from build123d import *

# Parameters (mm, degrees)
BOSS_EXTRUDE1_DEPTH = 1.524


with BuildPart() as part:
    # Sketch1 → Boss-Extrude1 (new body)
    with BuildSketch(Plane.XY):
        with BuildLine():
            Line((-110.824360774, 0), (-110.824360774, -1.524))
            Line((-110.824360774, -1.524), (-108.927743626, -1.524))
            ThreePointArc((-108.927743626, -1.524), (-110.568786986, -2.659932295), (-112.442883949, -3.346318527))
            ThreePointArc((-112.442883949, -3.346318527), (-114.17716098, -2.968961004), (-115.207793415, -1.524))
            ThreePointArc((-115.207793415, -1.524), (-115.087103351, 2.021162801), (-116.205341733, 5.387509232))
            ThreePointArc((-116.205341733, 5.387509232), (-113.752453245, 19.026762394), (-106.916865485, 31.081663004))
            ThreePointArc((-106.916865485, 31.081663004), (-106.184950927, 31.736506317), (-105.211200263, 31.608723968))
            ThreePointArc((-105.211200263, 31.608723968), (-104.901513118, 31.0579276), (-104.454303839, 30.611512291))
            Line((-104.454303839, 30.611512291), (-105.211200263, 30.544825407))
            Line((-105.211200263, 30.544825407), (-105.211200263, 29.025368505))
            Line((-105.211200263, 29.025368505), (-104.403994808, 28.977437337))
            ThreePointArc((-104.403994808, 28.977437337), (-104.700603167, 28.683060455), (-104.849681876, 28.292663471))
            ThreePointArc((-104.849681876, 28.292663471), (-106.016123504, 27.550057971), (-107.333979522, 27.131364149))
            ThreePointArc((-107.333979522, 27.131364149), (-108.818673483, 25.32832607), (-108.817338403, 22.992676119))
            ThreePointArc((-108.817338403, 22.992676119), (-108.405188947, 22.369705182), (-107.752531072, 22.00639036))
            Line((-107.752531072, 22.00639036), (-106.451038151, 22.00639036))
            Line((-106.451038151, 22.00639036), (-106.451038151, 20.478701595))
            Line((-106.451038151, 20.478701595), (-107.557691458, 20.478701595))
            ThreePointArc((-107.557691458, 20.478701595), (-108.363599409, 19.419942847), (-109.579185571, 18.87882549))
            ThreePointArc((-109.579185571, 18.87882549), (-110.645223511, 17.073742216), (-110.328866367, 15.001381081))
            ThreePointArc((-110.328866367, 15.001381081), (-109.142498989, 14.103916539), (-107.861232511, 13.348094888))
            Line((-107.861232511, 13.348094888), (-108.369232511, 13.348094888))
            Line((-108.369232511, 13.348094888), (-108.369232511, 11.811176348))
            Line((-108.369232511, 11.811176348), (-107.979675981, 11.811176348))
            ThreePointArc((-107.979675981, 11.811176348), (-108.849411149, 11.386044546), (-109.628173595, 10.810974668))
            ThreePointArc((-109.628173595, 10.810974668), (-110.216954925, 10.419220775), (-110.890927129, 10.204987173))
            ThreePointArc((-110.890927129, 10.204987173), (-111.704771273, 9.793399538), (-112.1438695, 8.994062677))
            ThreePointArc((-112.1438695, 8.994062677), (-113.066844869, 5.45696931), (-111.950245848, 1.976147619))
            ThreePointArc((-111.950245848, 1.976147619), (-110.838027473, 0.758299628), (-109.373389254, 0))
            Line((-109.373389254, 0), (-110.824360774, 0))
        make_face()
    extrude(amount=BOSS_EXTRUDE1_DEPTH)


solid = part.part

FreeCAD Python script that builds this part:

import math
import FreeCAD as App
import Part
import Sketcher

V = App.Vector
Q = App.Units.Quantity

doc = App.newDocument("Part")
body = doc.addObject("PartDesign::Body", "Body")

sketch1 = body.newObject("Sketcher::SketchObject", "Sketch")
sketch1.AttachmentSupport = (doc.getObject("XY_Plane"), [""])
sketch1.MapMode = "FlatFace"
sketch1.addGeometry(Part.LineSegment(V(-110.82, -1.52, 0), V(-110.82, 0, 0)), False)
sketch1.addGeometry(Part.LineSegment(V(-110.82, 0, 0), V(-109.37, 0, 0)), False)
sketch1.addGeometry(Part.ArcOfCircle(Part.Circle(V(-107.98, 4.49, 0), V(0, 0, 1), 4.7), math.radians(-148), math.radians(-107)), False)
sketch1.addGeometry(Part.ArcOfCircle(Part.Circle(V(-106.52, 5.64, 0), V(0, 0, 1), 6.55), math.radians(149), math.radians(214)), False)
sketch1.addGeometry(Part.ArcOfCircle(Part.Circle(V(-110.63, 8.68, 0), V(0, 0, 1), 1.54), math.radians(100), math.radians(168)), False)
sketch1.addGeometry(Part.ArcOfCircle(Part.Circle(V(-111.32, 12.71, 0), V(0, 0, 1), 2.54), math.radians(-80), math.radians(-48)), False)
sketch1.addGeometry(Part.ArcOfCircle(Part.Circle(V(-106.08, 6.82, 0), V(0, 0, 1), 5.34), math.radians(111), math.radians(132)), False)
sketch1.addGeometry(Part.LineSegment(V(-107.98, 11.81, 0), V(-108.37, 11.81, 0)), False)
sketch1.addGeometry(Part.LineSegment(V(-108.37, 11.81, 0), V(-108.37, 13.35, 0)), False)
sketch1.addGeometry(Part.LineSegment(V(-108.37, 13.35, 0), V(-107.86, 13.35, 0)), False)
sketch1.addGeometry(Part.ArcOfCircle(Part.Circle(V(-101.92, 24.89, 0), V(0, 0, 1), 12.98), math.radians(-130.39), math.radians(-117.25)), False)
sketch1.addGeometry(Part.ArcOfCircle(Part.Circle(V(-107.58, 16.48, 0), V(0, 0, 1), 3.12), math.radians(130), math.radians(208)), False)
sketch1.addGeometry(Part.ArcOfCircle(Part.Circle(V(-110.03, 21.52, 0), V(0, 0, 1), 2.68), math.radians(-80), math.radians(-23)), False)
sketch1.addGeometry(Part.LineSegment(V(-107.56, 20.48, 0), V(-106.45, 20.48, 0)), False)
sketch1.addGeometry(Part.LineSegment(V(-106.45, 20.48, 0), V(-106.45, 22.01, 0)), False)
sketch1.addGeometry(Part.LineSegment(V(-106.45, 22.01, 0), V(-107.75, 22.01, 0)), False)
sketch1.addGeometry(Part.ArcOfCircle(Part.Circle(V(-107.33, 23.53, 0), V(0, 0, 1), 1.58), math.radians(-160), math.radians(-105)), False)
sketch1.addGeometry(Part.ArcOfCircle(Part.Circle(V(-105.57, 24.16, 0), V(0, 0, 1), 3.46), math.radians(121), math.radians(200)), False)
sketch1.addGeometry(Part.ArcOfCircle(Part.Circle(V(-108.28, 32.39, 0), V(0, 0, 1), 5.35), math.radians(-80), math.radians(-50)), False)
sketch1.addGeometry(Part.ArcOfCircle(Part.Circle(V(-103.87, 28.14, 0), V(0, 0, 1), 0.99), math.radians(123), math.radians(171)), False)
sketch1.addGeometry(Part.LineSegment(V(-104.4, 28.98, 0), V(-105.21, 29.03, 0)), False)
sketch1.addGeometry(Part.LineSegment(V(-105.21, 29.03, 0), V(-105.21, 30.54, 0)), False)
sketch1.addGeometry(Part.LineSegment(V(-105.21, 30.54, 0), V(-104.45, 30.61, 0)), False)
sketch1.addGeometry(Part.ArcOfCircle(Part.Circle(V(-103.06, 32.46, 0), V(0, 0, 1), 2.31), math.radians(-159), math.radians(-127)), False)
sketch1.addGeometry(Part.ArcOfCircle(Part.Circle(V(-105.84, 30.61, 0), V(0, 0, 1), 1.18), math.radians(58), math.radians(156)), False)
sketch1.addGeometry(Part.ArcOfCircle(Part.Circle(V(-75, 5.02, 0), V(0, 0, 1), 41.21), math.radians(141), math.radians(179)), False)
sketch1.addGeometry(Part.ArcOfCircle(Part.Circle(V(-125.04, 0.59, 0), V(0, 0, 1), 10.05), math.radians(-12), math.radians(29)), False)
sketch1.addGeometry(Part.ArcOfCircle(Part.Circle(V(-112.82, -0.91, 0), V(0, 0, 1), 2.46), math.radians(-166), math.radians(-81)), False)
sketch1.addGeometry(Part.ArcOfCircle(Part.Circle(V(-114.19, 4.32, 0), V(0, 0, 1), 7.87), math.radians(-77), math.radians(-48)), False)
sketch1.addGeometry(Part.LineSegment(V(-108.93, -1.52, 0), V(-110.82, -1.52, 0)), False)
sketch1.addConstraint(Sketcher.Constraint("Coincident", 0, 2, 1, 1))
sketch1.addConstraint(Sketcher.Constraint("Coincident", 1, 2, 2, 2))
sketch1.addConstraint(Sketcher.Constraint("Coincident", 2, 1, 3, 2))
sketch1.addConstraint(Sketcher.Constraint("Coincident", 3, 1, 4, 2))
sketch1.addConstraint(Sketcher.Constraint("Tangent", 4, 1, 5, 1))
sketch1.addConstraint(Sketcher.Constraint("Tangent", 5, 2, 6, 2))
sketch1.addConstraint(Sketcher.Constraint("Coincident", 6, 1, 7, 1))
sketch1.addConstraint(Sketcher.Constraint("Coincident", 7, 2, 8, 1))
sketch1.addConstraint(Sketcher.Constraint("Coincident", 8, 2, 9, 1))
sketch1.addConstraint(Sketcher.Constraint("Coincident", 9, 2, 10, 2))
sketch1.addConstraint(Sketcher.Constraint("Coincident", 10, 1, 11, 2))
sketch1.addConstraint(Sketcher.Constraint("Coincident", 11, 1, 12, 1))
sketch1.addConstraint(Sketcher.Constraint("Coincident", 12, 2, 13, 1))
sketch1.addConstraint(Sketcher.Constraint("Coincident", 13, 2, 14, 1))
sketch1.addConstraint(Sketcher.Constraint("Coincident", 14, 2, 15, 1))
sketch1.addConstraint(Sketcher.Constraint("Coincident", 15, 2, 16, 2))
sketch1.addConstraint(Sketcher.Constraint("Tangent", 16, 1, 17, 2))
sketch1.addConstraint(Sketcher.Constraint("Coincident", 17, 1, 18, 1))
sketch1.addConstraint(Sketcher.Constraint("Coincident", 18, 2, 19, 2))
sketch1.addConstraint(Sketcher.Constraint("Coincident", 19, 1, 20, 1))
sketch1.addConstraint(Sketcher.Constraint("Coincident", 20, 2, 21, 1))
sketch1.addConstraint(Sketcher.Constraint("Coincident", 21, 2, 22, 1))
sketch1.addConstraint(Sketcher.Constraint("Coincident", 22, 2, 23, 2))
sketch1.addConstraint(Sketcher.Constraint("Coincident", 23, 1, 24, 1))
sketch1.addConstraint(Sketcher.Constraint("Coincident", 24, 2, 25, 1))
sketch1.addConstraint(Sketcher.Constraint("Coincident", 25, 2, 26, 2))
sketch1.addConstraint(Sketcher.Constraint("Coincident", 26, 1, 27, 1))
sketch1.addConstraint(Sketcher.Constraint("Coincident", 27, 2, 28, 1))
sketch1.addConstraint(Sketcher.Constraint("Coincident", 28, 2, 29, 1))
sketch1.addConstraint(Sketcher.Constraint("Coincident", 29, 2, 0, 1))
sketch1.addConstraint(Sketcher.Constraint("Vertical", 0))
sketch1.addConstraint(Sketcher.Constraint("Horizontal", 1))
sketch1.addConstraint(Sketcher.Constraint("Horizontal", 7))
sketch1.addConstraint(Sketcher.Constraint("Vertical", 8))
sketch1.addConstraint(Sketcher.Constraint("Horizontal", 9))
sketch1.addConstraint(Sketcher.Constraint("Horizontal", 13))
sketch1.addConstraint(Sketcher.Constraint("Vertical", 14))
sketch1.addConstraint(Sketcher.Constraint("Horizontal", 15))
sketch1.addConstraint(Sketcher.Constraint("Vertical", 21))
sketch1.addConstraint(Sketcher.Constraint("Horizontal", 29))
sketch1.addConstraint(Sketcher.Constraint("PointOnObject", 0, 2, -1))
sketch1.addConstraint(Sketcher.Constraint("Horizontal", 24, 3, 22, 2))
sketch1.addConstraint(Sketcher.Constraint("Horizontal", 26, 1, 28, 2))
sketch1.addConstraint(Sketcher.Constraint("Vertical", 2, 3, 6, 1))
sketch1.addConstraint(Sketcher.Constraint("Vertical", 21, 2, 23, 1))
sketch1.addConstraint(Sketcher.Constraint("Radius", 5, Q("0.1 in")))
sketch1.addConstraint(Sketcher.Constraint("DistanceX", 9, 1, 9, 2, Q("0.02 in")))
sketch1.addConstraint(Sketcher.Constraint("DistanceY", 0, 1, 0, 2, Q("0.06 in")))
sketch1.addConstraint(Sketcher.Constraint("Radius", 19, 0.992098))
sketch1.addConstraint(Sketcher.Constraint("Radius", 4, 1.542431))
sketch1.addConstraint(Sketcher.Constraint("Radius", 6, 5.343749))
sketch1.addConstraint(Sketcher.Constraint("Radius", 11, 3.121288))
sketch1.addConstraint(Sketcher.Constraint("Radius", 12, 2.68193))
sketch1.addConstraint(Sketcher.Constraint("Radius", 24, 1.17748))
sketch1.addConstraint(Sketcher.Constraint("Radius", 2, 4.697067))
sketch1.addConstraint(Sketcher.Constraint("Radius", 3, 6.549322))
sketch1.addConstraint(Sketcher.Constraint("Radius", 10, 12.979325))
sketch1.addConstraint(Sketcher.Constraint("Radius", 16, 1.576475))
sketch1.addConstraint(Sketcher.Constraint("Radius", 17, 3.455774))
sketch1.addConstraint(Sketcher.Constraint("Radius", 18, 5.347576))
sketch1.addConstraint(Sketcher.Constraint("Radius", 23, 2.312683))
sketch1.addConstraint(Sketcher.Constraint("Radius", 25, 41.209073))
sketch1.addConstraint(Sketcher.Constraint("Radius", 26, 10.051992))
sketch1.addConstraint(Sketcher.Constraint("Radius", 27, 2.463666))
sketch1.addConstraint(Sketcher.Constraint("Radius", 28, 7.866587))
sketch1.addConstraint(Sketcher.Constraint("DistanceY", 2, 3, 10, 3, Q("0.8031998 in")))
sketch1.addConstraint(Sketcher.Constraint("DistanceX", 24, 3, 17, 3, Q("0.0107002 in")))
sketch1.addConstraint(Sketcher.Constraint("DistanceX", 16, 1, 17, 1, Q("0.0584 in")))
sketch1.addConstraint(Sketcher.Constraint("DistanceX", 1, 1, 1, 2, 1.450972))
sketch1.addConstraint(Sketcher.Constraint("DistanceY", 8, 1, 8, 2, 1.536919))
sketch1.addConstraint(Sketcher.Constraint("DistanceY", 14, 1, 14, 2, 1.527689))
sketch1.addConstraint(Sketcher.Constraint("DistanceY", 27, 3, -1, 1, 0.9119))
sketch1.addConstraint(Sketcher.Constraint("DistanceY", -1, 1, 12, 2, 20.478702))
sketch1.addConstraint(Sketcher.Constraint("DistanceX", 20, 2, -1, 1, 105.2112))
sketch1.addConstraint(Sketcher.Constraint("DistanceY", 3, 3, 4, 3, 3.046702))
sketch1.addConstraint(Sketcher.Constraint("DistanceX", 27, 3, 2, 3, 4.841701))
sketch1.addConstraint(Sketcher.Constraint("DistanceY", 28, 3, 6, 3, 2.493501))
sketch1.addConstraint(Sketcher.Constraint("DistanceY", 2, 1, 28, 3, 2.3478))
sketch1.addConstraint(Sketcher.Constraint("DistanceX", 28, 3, 3, 1, 2.0455))
sketch1.addConstraint(Sketcher.Constraint("DistanceY", 5, 2, 6, 1, 1.000202))
sketch1.addConstraint(Sketcher.Constraint("DistanceX", 13, 2, 17, 3, 0.885501))
sketch1.addConstraint(Sketcher.Constraint("DistanceX", 16, 1, 14, 2, 2.3663))
sketch1.addConstraint(Sketcher.Constraint("DistanceY", 17, 1, 18, 2, 1.161299))
sketch1.addConstraint(Sketcher.Constraint("DistanceY", 21, 2, 23, 1, 1.063899))
sketch1.addConstraint(Sketcher.Constraint("Distance", 22, 0.759828))
sketch1.addConstraint(Sketcher.Constraint("DistanceX", 7, 2, 7, 1, 0.389557))
sketch1.addConstraint(Sketcher.Constraint("DistanceX", 13, 1, 13, 2, 1.106653))
sketch1.addConstraint(Sketcher.Constraint("DistanceX", 15, 2, 15, 1, 1.301493))
sketch1.addConstraint(Sketcher.Constraint("DistanceX", 29, 2, 29, 1, 1.896617))
sketch1.addConstraint(Sketcher.Constraint("DistanceY", 21, 1, 21, 2, 1.519457))
sketch1.addConstraint(Sketcher.Constraint("DistanceY", -1, 1, 6, 3, 6.817449))
sketch1.addConstraint(Sketcher.Constraint("DistanceX", 11, 3, -1, 1, 107.580689))
sketch1.addConstraint(Sketcher.Constraint("DistanceX", 12, 3, -1, 1, 110.027979))
sketch1.addConstraint(Sketcher.Constraint("DistanceY", -1, 1, 12, 3, 21.522939))
sketch1.addConstraint(Sketcher.Constraint("DistanceX", 19, 3, -1, 1, 103.869109))
sketch1.addConstraint(Sketcher.Constraint("DistanceY", -1, 1, 19, 3, 28.14188))
sketch1.addConstraint(Sketcher.Constraint("DistanceY", -1, 1, 23, 3, 32.45614))
sketch1.addConstraint(Sketcher.Constraint("DistanceX", 28, 3, -1, 1, 114.189369))
sketch1.addConstraint(Sketcher.Constraint("DistanceY", -1, 1, 10, 1, 15.001381))
sketch1.addConstraint(Sketcher.Constraint("DistanceX", 25, 2, -1, 1, 116.205342))
sketch1.addConstraint(Sketcher.Constraint("DistanceY", -1, 1, 25, 2, 5.387509))
sketch1.addConstraint(Sketcher.Constraint("DistanceY", 27, 2, -1, 1, 3.346319))
sketch1.addConstraint(Sketcher.Constraint("DistanceX", 4, 3, 3, 3, 4.112849))
sketch1.addConstraint(Sketcher.Constraint("DistanceX", 3, 3, 25, 3, 31.522079))
sketch1.addConstraint(Sketcher.Constraint("DistanceY", 19, 1, 20, 2, 0.047931))
pad1 = body.newObject("PartDesign::Pad", "Pad")
pad1.Profile = sketch1
pad1.Length = Q("0.06 in")

doc.recompute()
